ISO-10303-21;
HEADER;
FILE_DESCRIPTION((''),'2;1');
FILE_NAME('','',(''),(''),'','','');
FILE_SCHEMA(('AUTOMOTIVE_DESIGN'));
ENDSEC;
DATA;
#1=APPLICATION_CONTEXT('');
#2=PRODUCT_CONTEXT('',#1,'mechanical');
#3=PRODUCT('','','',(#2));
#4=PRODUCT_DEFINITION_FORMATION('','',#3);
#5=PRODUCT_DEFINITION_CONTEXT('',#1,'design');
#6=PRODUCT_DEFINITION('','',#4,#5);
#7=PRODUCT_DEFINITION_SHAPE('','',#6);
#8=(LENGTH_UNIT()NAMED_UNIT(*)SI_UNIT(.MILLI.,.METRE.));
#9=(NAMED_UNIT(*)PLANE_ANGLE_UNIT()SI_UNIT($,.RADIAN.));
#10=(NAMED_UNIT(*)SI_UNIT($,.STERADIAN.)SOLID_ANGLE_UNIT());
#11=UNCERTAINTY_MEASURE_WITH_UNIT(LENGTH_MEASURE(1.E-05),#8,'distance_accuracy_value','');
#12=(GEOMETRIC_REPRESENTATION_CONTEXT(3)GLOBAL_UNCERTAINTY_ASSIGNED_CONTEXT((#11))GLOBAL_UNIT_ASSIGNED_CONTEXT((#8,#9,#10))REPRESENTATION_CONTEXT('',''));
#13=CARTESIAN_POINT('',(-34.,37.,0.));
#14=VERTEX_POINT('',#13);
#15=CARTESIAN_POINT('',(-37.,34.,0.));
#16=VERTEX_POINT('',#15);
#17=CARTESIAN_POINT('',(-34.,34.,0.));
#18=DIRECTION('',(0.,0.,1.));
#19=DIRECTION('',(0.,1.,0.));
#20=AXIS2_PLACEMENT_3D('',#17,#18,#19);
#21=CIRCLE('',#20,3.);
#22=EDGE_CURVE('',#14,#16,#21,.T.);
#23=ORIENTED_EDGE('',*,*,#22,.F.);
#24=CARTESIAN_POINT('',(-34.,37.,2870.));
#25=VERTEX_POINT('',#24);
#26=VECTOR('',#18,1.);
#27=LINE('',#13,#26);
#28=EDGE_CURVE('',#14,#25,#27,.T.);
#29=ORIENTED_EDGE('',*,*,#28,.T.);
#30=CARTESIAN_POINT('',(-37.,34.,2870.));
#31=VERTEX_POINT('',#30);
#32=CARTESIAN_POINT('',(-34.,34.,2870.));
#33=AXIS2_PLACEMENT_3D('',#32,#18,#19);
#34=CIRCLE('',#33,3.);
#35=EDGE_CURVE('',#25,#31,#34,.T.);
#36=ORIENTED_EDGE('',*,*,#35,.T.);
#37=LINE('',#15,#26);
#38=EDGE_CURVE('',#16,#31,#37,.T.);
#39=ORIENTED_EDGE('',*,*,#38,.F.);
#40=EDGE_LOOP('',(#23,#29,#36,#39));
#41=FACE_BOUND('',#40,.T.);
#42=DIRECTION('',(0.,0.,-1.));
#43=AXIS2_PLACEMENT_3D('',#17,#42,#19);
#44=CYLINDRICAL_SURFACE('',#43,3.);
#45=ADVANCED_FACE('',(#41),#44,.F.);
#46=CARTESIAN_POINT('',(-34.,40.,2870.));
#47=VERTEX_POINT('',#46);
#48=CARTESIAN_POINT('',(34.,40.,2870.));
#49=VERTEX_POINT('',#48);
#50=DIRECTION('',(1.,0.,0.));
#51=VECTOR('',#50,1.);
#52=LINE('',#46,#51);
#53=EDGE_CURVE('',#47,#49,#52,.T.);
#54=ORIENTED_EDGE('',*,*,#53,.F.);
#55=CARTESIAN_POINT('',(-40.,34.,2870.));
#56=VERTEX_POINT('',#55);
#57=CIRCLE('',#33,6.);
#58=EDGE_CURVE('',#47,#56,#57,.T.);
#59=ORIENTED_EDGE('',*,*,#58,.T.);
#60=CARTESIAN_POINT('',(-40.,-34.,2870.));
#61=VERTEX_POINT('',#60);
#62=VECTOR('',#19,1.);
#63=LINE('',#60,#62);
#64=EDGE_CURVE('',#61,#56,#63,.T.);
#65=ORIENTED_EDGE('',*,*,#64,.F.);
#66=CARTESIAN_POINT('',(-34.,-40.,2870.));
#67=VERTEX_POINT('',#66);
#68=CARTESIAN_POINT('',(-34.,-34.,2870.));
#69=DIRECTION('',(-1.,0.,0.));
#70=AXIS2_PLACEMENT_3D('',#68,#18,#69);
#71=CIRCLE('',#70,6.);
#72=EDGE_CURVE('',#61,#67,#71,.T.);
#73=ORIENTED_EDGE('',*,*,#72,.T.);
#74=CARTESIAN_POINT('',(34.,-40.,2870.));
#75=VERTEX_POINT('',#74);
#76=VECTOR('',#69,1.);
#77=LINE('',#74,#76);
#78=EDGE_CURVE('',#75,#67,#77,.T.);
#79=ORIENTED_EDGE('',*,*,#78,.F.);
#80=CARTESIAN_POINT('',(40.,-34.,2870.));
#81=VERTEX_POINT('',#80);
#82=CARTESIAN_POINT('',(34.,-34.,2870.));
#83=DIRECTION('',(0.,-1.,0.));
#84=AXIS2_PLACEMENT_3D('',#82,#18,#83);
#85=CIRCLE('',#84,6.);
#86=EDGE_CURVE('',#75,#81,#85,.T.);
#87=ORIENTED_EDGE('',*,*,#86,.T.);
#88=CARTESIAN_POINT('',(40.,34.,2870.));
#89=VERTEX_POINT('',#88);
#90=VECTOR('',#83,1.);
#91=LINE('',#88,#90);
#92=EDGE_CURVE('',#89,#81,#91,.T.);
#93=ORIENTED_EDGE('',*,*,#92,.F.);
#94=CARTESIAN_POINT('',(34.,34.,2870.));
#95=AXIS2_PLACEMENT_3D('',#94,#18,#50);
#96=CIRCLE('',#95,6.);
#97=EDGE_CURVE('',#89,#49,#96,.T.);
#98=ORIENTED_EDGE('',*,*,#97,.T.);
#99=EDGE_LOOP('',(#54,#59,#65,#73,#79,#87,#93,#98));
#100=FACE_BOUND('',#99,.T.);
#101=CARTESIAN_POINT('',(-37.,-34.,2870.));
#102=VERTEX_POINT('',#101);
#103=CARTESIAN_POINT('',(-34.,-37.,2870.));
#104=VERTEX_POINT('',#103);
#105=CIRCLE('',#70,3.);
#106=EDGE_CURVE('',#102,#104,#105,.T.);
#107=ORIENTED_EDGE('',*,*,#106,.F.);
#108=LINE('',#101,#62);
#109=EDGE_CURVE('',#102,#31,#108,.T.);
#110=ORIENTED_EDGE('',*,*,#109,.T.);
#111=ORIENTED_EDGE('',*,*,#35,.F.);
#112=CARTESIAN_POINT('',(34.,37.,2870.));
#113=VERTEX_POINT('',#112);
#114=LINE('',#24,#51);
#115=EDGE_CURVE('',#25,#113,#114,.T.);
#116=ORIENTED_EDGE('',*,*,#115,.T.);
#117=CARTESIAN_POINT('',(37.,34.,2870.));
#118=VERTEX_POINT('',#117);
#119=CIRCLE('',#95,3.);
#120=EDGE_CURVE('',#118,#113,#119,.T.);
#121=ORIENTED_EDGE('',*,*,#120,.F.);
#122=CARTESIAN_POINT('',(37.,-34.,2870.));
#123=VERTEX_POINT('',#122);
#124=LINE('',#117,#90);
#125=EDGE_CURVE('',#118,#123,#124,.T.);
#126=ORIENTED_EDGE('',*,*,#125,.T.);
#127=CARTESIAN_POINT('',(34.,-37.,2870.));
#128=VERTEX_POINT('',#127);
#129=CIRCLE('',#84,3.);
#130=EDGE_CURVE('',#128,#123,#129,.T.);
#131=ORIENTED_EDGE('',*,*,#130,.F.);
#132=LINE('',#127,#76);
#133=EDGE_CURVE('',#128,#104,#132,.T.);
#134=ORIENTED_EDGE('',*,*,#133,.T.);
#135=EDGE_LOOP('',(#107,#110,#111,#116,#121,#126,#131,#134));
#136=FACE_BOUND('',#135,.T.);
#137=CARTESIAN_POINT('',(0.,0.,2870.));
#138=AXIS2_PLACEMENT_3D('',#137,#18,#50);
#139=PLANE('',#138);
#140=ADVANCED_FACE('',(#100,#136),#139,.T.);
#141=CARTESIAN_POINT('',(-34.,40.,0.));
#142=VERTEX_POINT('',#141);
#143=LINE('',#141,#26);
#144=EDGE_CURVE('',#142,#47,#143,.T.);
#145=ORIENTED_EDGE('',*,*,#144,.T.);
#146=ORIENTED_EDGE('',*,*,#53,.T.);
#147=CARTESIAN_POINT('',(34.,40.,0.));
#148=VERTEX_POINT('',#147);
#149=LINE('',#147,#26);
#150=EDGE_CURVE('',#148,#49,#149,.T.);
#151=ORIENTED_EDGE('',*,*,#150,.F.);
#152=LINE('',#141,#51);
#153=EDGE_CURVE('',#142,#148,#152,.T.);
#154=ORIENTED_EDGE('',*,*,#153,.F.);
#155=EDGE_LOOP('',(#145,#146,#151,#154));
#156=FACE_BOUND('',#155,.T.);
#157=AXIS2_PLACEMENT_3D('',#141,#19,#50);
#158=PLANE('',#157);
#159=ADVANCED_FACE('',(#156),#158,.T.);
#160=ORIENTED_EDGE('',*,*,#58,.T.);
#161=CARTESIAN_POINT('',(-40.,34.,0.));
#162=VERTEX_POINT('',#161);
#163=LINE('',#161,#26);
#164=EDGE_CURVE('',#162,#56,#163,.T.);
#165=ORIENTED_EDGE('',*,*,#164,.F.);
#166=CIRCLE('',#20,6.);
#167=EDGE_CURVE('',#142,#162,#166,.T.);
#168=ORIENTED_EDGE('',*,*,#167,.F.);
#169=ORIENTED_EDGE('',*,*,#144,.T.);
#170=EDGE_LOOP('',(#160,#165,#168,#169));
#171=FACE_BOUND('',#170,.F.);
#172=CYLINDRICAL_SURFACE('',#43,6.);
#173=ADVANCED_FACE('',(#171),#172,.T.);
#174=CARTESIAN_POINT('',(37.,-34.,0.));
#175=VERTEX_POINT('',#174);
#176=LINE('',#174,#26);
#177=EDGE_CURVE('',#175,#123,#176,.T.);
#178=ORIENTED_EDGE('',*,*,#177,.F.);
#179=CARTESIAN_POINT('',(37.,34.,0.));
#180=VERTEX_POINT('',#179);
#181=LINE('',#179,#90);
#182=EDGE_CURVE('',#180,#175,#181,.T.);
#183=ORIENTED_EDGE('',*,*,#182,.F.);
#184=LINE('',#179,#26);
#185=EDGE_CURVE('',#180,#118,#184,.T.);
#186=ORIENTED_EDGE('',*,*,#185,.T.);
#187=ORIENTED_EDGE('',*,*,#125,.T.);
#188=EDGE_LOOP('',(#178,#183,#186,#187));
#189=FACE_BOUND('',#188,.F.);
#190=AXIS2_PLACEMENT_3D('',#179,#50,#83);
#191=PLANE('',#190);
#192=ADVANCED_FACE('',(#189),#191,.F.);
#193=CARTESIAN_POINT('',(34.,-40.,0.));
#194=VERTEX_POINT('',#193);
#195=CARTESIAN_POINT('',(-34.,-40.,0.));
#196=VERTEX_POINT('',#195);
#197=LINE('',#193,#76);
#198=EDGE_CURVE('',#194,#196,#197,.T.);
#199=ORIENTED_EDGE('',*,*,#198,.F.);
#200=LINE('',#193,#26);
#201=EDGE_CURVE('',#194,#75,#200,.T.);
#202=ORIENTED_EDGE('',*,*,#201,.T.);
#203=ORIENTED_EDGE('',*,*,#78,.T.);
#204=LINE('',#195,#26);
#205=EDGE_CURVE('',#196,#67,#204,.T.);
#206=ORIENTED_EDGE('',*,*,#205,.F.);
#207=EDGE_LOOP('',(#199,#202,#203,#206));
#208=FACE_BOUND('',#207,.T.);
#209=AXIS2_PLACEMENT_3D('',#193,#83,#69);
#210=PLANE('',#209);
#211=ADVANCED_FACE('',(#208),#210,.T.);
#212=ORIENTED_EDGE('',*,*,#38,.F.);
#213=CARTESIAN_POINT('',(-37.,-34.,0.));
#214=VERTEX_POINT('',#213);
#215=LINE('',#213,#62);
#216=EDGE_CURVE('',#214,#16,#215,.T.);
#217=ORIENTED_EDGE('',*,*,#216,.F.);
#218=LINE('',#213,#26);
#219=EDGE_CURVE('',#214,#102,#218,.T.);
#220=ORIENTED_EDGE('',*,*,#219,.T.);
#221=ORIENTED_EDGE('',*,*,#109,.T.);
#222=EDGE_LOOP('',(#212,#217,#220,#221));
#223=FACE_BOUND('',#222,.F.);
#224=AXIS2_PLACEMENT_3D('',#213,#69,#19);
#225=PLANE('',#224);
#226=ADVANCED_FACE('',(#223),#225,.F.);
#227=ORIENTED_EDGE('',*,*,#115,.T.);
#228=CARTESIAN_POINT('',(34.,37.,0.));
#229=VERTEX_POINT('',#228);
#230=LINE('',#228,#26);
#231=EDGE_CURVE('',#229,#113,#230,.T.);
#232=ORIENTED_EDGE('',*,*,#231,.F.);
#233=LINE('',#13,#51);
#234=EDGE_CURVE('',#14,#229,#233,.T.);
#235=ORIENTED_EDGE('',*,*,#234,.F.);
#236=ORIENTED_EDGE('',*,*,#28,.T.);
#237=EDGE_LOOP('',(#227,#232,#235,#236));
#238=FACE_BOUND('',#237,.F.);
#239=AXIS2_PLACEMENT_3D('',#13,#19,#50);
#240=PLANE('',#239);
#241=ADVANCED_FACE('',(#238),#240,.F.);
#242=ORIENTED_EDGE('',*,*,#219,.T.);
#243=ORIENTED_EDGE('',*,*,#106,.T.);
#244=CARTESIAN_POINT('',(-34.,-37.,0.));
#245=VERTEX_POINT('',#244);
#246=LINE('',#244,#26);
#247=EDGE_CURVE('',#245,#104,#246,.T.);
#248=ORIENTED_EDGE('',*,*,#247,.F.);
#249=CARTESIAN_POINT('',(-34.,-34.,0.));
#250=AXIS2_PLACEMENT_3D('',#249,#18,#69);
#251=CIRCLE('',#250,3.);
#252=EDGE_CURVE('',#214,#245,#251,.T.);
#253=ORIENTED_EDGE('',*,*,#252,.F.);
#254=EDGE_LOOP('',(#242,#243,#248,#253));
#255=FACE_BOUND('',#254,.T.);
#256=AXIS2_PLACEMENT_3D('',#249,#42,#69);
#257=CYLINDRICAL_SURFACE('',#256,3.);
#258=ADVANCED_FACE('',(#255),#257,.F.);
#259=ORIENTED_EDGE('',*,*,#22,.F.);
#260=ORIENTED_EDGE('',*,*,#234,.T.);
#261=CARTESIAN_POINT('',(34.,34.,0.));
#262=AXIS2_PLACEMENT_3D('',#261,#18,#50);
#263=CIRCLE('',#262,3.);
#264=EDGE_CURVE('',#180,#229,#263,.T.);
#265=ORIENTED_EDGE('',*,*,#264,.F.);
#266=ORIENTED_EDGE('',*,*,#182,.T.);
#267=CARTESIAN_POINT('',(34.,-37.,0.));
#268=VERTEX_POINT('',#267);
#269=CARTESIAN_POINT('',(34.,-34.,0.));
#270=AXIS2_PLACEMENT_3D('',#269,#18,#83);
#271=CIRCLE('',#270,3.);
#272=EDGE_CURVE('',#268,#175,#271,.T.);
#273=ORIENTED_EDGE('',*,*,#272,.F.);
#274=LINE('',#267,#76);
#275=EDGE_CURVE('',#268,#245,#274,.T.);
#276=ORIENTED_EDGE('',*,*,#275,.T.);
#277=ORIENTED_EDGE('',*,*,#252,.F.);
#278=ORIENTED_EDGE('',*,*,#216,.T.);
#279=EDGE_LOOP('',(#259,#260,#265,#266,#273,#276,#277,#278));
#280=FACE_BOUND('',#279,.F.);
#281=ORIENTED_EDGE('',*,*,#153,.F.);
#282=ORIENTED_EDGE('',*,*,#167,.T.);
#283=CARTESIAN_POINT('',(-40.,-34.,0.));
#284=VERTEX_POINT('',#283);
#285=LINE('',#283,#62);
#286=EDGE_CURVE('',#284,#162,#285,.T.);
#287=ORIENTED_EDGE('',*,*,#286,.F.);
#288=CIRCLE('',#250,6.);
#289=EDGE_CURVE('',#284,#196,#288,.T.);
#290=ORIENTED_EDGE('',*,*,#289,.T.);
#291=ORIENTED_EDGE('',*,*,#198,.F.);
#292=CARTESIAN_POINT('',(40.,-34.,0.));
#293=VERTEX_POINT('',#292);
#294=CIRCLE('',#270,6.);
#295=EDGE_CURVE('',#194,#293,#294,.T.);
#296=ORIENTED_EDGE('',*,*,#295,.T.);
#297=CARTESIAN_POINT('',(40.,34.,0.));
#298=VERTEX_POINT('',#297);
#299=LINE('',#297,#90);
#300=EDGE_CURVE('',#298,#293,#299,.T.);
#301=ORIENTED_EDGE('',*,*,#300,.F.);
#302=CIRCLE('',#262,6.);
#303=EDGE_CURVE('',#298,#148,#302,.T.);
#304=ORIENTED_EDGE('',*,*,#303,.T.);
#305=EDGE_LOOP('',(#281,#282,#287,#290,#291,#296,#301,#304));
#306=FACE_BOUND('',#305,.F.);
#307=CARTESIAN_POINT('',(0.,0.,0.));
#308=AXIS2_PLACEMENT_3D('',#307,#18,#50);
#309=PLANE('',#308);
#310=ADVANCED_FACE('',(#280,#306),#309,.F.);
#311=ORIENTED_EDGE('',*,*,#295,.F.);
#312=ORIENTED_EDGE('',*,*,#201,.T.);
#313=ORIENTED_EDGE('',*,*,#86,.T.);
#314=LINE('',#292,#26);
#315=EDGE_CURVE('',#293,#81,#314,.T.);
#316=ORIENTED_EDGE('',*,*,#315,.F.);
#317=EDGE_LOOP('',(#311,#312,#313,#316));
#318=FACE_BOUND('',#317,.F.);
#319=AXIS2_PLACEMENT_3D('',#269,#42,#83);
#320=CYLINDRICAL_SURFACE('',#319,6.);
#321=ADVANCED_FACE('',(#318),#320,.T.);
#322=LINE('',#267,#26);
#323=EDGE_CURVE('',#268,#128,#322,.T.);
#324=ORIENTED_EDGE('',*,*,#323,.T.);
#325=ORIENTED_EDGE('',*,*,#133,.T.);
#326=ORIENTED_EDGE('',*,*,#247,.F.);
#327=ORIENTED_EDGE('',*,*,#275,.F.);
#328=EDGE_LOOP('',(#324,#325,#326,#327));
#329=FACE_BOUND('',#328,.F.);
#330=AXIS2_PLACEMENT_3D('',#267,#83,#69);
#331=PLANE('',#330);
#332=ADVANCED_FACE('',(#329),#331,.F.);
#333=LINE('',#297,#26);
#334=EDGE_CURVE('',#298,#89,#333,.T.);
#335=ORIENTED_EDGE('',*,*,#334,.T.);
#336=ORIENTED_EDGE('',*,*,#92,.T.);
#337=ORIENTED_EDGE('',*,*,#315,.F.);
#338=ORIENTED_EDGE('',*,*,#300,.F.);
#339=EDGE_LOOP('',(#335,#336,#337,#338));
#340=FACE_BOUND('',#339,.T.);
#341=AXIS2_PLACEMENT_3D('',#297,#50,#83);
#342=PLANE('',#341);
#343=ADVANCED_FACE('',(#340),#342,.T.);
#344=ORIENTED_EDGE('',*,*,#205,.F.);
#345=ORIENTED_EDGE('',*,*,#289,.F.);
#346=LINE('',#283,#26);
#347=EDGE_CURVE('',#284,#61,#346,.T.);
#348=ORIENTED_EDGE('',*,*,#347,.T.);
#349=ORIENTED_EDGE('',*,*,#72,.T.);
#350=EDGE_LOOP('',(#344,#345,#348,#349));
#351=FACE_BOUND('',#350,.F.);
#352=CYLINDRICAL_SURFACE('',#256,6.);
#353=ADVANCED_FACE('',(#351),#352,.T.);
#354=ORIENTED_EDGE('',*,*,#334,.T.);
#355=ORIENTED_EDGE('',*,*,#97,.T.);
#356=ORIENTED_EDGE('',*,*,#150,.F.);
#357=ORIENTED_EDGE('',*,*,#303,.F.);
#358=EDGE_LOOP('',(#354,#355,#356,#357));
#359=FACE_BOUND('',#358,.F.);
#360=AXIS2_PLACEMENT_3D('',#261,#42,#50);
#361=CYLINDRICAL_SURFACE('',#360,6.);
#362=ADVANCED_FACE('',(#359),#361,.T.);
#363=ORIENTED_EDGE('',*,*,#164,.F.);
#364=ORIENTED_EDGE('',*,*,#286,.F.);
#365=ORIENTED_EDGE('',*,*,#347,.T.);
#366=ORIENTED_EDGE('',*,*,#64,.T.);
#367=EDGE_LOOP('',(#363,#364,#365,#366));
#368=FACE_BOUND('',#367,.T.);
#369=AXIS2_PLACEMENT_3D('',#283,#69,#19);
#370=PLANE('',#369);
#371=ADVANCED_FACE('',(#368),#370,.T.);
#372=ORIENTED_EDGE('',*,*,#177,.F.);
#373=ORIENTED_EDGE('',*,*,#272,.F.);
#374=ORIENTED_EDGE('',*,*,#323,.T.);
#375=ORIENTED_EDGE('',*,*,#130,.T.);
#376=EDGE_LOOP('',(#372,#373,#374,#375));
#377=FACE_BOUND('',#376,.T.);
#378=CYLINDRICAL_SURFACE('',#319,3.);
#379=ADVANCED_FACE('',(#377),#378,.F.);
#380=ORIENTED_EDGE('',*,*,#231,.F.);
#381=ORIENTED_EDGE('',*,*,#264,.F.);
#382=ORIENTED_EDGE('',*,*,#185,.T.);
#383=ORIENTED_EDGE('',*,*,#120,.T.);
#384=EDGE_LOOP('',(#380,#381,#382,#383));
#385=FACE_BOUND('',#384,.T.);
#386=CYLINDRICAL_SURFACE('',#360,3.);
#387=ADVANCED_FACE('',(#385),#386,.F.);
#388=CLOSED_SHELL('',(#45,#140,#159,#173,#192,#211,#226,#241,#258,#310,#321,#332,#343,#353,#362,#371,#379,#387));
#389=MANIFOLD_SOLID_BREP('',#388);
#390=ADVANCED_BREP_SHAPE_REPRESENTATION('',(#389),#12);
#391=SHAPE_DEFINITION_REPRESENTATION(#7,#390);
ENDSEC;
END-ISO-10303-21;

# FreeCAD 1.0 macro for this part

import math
import FreeCAD as App
import Part
import Sketcher

doc = App.newDocument("Part")
body = doc.addObject("PartDesign::Body", "Body")

sketch1 = doc.addObject("Sketcher::SketchObject", "Sketch")
body.addObject(sketch1)
sketch1.AttachmentSupport = (doc.XY_Plane, [""])
sketch1.MapMode = "FlatFace"
sketch1.addGeometry(Part.LineSegment(App.Vector(-40, 34, 0), App.Vector(-40, -34, 0)), False)
sketch1.addGeometry(Part.ArcOfCircle(Part.Circle(App.Vector(-34, -34, 0), App.Vector(0, 0, 1), 6), math.radians(180), math.radians(270)), False)
sketch1.addGeometry(Part.LineSegment(App.Vector(-34, -40, 0), App.Vector(34, -40, 0)), False)
sketch1.addGeometry(Part.ArcOfCircle(Part.Circle(App.Vector(34, -34, 0), App.Vector(0, 0, 1), 6), math.radians(-90), math.radians(0)), False)
sketch1.addGeometry(Part.LineSegment(App.Vector(40, -34, 0), App.Vector(40, 34, 0)), False)
sketch1.addGeometry(Part.ArcOfCircle(Part.Circle(App.Vector(34, 34, 0), App.Vector(0, 0, 1), 6), math.radians(0), math.radians(90)), False)
sketch1.addGeometry(Part.LineSegment(App.Vector(34, 40, 0), App.Vector(-34, 40, 0)), False)
sketch1.addGeometry(Part.ArcOfCircle(Part.Circle(App.Vector(-34, 34, 0), App.Vector(0, 0, 1), 6), math.radians(90), math.radians(180)), False)
sketch1.addGeometry(Part.ArcOfCircle(Part.Circle(App.Vector(-34, 34, 0), App.Vector(0, 0, 1), 3), math.radians(90), math.radians(180)), False)
sketch1.addGeometry(Part.LineSegment(App.Vector(-34, 37, 0), App.Vector(34, 37, 0)), False)
sketch1.addGeometry(Part.ArcOfCircle(Part.Circle(App.Vector(34, 34, 0), App.Vector(0, 0, 1), 3), math.radians(0), math.radians(90)), False)
sketch1.addGeometry(Part.LineSegment(App.Vector(37, 34, 0), App.Vector(37, -34, 0)), False)
sketch1.addGeometry(Part.ArcOfCircle(Part.Circle(App.Vector(34, -34, 0), App.Vector(0, 0, 1), 3), math.radians(-90), math.radians(0)), False)
sketch1.addGeometry(Part.LineSegment(App.Vector(34, -37, 0), App.Vector(-34, -37, 0)), False)
sketch1.addGeometry(Part.ArcOfCircle(Part.Circle(App.Vector(-34, -34, 0), App.Vector(0, 0, 1), 3), math.radians(180), math.radians(270)), False)
sketch1.addGeometry(Part.LineSegment(App.Vector(-37, -34, 0), App.Vector(-37, 34, 0)), False)
sketch1.addConstraint(Sketcher.Constraint("Tangent", 0, 2, 1, 1))
sketch1.addConstraint(Sketcher.Constraint("Tangent", 1, 2, 2, 1))
sketch1.addConstraint(Sketcher.Constraint("Tangent", 2, 2, 3, 1))
sketch1.addConstraint(Sketcher.Constraint("Tangent", 3, 2, 4, 1))
sketch1.addConstraint(Sketcher.Constraint("Tangent", 4, 2, 5, 1))
sketch1.addConstraint(Sketcher.Constraint("Tangent", 5, 2, 6, 1))
sketch1.addConstraint(Sketcher.Constraint("Tangent", 6, 2, 7, 1))
sketch1.addConstraint(Sketcher.Constraint("Tangent", 7, 2, 0, 1))
sketch1.addConstraint(Sketcher.Constraint("Tangent", 8, 1, 9, 1))
sketch1.addConstraint(Sketcher.Constraint("Tangent", 9, 2, 10, 2))
sketch1.addConstraint(Sketcher.Constraint("Tangent", 10, 1, 11, 1))
sketch1.addConstraint(Sketcher.Constraint("Tangent", 11, 2, 12, 2))
sketch1.addConstraint(Sketcher.Constraint("Tangent", 12, 1, 13, 1))
sketch1.addConstraint(Sketcher.Constraint("Tangent", 13, 2, 14, 2))
sketch1.addConstraint(Sketcher.Constraint("Tangent", 14, 1, 15, 1))
sketch1.addConstraint(Sketcher.Constraint("Tangent", 15, 2, 8, 2))
sketch1.addConstraint(Sketcher.Constraint("Vertical", 0))
sketch1.addConstraint(Sketcher.Constraint("Horizontal", 2))
sketch1.addConstraint(Sketcher.Constraint("Vertical", 4))
sketch1.addConstraint(Sketcher.Constraint("Horizontal", 6))
sketch1.addConstraint(Sketcher.Constraint("Horizontal", 9))
sketch1.addConstraint(Sketcher.Constraint("Vertical", 11))
sketch1.addConstraint(Sketcher.Constraint("Horizontal", 13))
sketch1.addConstraint(Sketcher.Constraint("Vertical", 15))
sketch1.addConstraint(Sketcher.Constraint("Coincident", 8, 3, 7, 3))
sketch1.addConstraint(Sketcher.Constraint("Coincident", 10, 3, 5, 3))
sketch1.addConstraint(Sketcher.Constraint("Coincident", 12, 3, 3, 3))
sketch1.addConstraint(Sketcher.Constraint("Equal", 1, 3))
sketch1.addConstraint(Sketcher.Constraint("Equal", 3, 5))
sketch1.addConstraint(Sketcher.Constraint("Equal", 5, 7))
sketch1.addConstraint(Sketcher.Constraint("Equal", 12, 14))
sketch1.addConstraint(Sketcher.Constraint("Symmetric", 1, 3, 5, 3, -1, 1))
sketch1.addConstraint(Sketcher.Constraint("Equal", 13, 0))
sketch1.addConstraint(Sketcher.Constraint("Radius", 1, 6.0))
sketch1.addConstraint(Sketcher.Constraint("Radius", 8, 3.0))
sketch1.addConstraint(Sketcher.Constraint("DistanceX", 0, 2, -1, 1, 40.0))
pad1 = doc.addObject("PartDesign::Pad", "Pad")
body.addObject(pad1)
pad1.Profile = sketch1
pad1.Length = 2870

doc.recompute()
